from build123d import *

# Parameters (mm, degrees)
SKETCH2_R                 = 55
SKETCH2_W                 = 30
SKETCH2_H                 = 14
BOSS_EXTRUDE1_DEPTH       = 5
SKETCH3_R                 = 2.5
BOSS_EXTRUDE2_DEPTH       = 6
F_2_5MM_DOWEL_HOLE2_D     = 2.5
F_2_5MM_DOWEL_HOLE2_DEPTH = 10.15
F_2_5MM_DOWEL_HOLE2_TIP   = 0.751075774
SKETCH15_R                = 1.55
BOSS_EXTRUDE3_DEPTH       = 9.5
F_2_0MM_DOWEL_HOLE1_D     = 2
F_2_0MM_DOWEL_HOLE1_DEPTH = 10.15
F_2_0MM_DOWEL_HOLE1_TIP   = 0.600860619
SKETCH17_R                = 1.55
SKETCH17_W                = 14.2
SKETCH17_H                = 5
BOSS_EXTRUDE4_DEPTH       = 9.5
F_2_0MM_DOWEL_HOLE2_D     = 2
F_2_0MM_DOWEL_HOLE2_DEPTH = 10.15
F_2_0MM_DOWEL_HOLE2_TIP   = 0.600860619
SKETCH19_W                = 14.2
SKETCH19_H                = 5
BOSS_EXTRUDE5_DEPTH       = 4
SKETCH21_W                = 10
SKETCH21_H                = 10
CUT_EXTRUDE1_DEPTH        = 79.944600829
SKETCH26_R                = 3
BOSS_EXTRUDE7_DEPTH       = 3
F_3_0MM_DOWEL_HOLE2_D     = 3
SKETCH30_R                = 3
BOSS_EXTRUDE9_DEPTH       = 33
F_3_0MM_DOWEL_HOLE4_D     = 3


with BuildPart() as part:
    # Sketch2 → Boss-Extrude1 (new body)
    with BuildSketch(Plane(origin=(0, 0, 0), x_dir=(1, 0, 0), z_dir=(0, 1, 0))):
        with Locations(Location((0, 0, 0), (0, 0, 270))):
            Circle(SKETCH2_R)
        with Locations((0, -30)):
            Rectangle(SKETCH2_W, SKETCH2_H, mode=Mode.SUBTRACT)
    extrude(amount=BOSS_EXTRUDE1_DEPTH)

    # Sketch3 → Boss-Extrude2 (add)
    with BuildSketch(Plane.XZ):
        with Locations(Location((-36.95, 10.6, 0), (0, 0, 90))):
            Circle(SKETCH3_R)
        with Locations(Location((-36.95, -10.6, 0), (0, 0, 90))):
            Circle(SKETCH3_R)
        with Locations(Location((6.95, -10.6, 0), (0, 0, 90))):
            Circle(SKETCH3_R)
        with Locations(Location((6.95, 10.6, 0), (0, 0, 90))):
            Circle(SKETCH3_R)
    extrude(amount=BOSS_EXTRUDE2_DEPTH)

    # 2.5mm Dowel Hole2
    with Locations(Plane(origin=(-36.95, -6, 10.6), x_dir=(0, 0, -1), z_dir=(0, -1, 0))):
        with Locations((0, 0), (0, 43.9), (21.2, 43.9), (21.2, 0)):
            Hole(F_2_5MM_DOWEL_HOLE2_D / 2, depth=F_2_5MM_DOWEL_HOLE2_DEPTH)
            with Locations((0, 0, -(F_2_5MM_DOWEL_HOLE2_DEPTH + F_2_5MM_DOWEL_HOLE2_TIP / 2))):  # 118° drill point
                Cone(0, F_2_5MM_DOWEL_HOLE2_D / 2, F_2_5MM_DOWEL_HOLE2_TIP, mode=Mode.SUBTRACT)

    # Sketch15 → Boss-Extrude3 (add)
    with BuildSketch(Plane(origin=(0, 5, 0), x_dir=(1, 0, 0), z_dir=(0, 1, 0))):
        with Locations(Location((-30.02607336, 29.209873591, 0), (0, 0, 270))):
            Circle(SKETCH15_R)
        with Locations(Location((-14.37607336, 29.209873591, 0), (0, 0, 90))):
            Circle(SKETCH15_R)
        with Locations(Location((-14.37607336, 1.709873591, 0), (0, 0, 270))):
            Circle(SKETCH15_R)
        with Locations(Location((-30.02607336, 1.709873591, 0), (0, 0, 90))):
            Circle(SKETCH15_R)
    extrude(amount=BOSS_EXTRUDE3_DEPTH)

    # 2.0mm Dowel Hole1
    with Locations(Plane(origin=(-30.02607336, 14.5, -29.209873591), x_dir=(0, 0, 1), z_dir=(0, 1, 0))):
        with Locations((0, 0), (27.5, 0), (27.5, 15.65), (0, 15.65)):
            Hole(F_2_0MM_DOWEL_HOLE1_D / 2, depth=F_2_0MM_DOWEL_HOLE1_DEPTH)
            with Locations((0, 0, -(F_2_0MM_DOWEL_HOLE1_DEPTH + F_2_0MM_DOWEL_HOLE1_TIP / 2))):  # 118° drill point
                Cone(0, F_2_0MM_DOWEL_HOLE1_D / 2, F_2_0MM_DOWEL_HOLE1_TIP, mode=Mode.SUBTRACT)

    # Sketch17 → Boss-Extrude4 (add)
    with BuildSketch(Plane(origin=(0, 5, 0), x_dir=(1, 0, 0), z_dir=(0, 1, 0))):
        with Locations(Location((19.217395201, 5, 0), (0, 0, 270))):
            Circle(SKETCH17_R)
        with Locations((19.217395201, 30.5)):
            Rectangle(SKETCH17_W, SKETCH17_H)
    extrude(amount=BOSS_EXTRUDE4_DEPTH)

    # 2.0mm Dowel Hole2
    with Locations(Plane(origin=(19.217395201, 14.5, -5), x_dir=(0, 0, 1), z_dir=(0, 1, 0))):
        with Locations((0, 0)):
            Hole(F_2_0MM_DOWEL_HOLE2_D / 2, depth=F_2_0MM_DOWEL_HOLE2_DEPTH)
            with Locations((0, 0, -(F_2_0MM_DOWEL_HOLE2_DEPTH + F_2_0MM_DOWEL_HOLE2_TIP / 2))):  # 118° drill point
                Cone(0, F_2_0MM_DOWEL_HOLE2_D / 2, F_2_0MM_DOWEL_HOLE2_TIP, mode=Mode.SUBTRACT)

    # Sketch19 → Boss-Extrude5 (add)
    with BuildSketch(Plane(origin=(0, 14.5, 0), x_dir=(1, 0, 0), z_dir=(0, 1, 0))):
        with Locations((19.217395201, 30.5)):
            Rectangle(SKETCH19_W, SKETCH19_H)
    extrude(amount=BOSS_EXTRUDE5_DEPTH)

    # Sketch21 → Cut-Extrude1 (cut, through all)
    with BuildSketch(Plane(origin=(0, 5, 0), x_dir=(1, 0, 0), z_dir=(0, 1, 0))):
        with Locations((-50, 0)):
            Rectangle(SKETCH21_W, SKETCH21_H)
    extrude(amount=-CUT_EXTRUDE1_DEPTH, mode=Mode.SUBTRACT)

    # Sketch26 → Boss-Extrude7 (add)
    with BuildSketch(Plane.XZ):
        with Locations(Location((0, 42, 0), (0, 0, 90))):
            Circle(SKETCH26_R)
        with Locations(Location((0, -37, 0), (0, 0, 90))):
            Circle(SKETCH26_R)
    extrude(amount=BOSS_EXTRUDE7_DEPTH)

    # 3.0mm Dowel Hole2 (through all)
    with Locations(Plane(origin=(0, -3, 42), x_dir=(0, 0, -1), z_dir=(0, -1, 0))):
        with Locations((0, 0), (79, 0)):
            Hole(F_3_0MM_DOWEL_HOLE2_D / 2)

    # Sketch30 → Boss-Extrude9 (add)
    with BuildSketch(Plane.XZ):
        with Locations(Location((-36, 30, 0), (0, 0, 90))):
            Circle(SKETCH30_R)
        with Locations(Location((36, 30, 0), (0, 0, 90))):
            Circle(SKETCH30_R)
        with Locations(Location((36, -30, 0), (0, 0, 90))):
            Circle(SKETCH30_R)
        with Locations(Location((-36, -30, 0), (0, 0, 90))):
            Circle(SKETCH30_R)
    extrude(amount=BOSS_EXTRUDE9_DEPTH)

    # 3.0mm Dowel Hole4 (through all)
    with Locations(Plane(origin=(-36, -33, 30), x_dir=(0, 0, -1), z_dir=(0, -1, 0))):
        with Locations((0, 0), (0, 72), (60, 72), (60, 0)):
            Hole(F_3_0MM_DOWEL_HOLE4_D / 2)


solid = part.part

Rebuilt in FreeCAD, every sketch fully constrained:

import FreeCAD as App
import Part
import Sketcher

V = App.Vector


def add_polygon(sketch, points):
    """Adds a closed chain of lines whose ends are joined by coincident constraints."""
    first, n = sketch.GeometryCount, len(points)
    for a, b in zip(points, points[1:] + points[:1]):
        sketch.addGeometry(Part.LineSegment(App.Vector(*a, 0), App.Vector(*b, 0)), False)
    for i in range(n):
        sketch.addConstraint(Sketcher.Constraint("Coincident", first + i, 2, first + (i + 1) % n, 1))

doc = App.newDocument("Part")
body = doc.addObject("PartDesign::Body", "Body")

# Sketch on XZ plane
sketch1 = doc.addObject("Sketcher::SketchObject", "Sketch")
body.addObject(sketch1)
sketch1.AttachmentSupport = (doc.XZ_Plane, [""])
sketch1.MapMode = "FlatFace"
sketch1.addGeometry(Part.Circle(V(0, 0, 0), V(0, 0, 1), 55), False)  # 0
add_polygon(sketch1, [(15, 37), (-15, 37), (-15, 23), (15, 23)])  # lines 1-4
sketch1.addConstraint([
    Sketcher.Constraint("Horizontal", 1),
    Sketcher.Constraint("Vertical", 2),
    Sketcher.Constraint("Horizontal", 3),
    Sketcher.Constraint("Vertical", 4),
    Sketcher.Constraint("Coincident", 0, 3, -1, 1),
    Sketcher.Constraint("Diameter", 0, 110.0),
    Sketcher.Constraint("DistanceX", 1, 2, 1, 1, 30.0),
    Sketcher.Constraint("DistanceY", 2, 2, 2, 1, 14.0),
    Sketcher.Constraint("DistanceX", 1, 2, -1, 1, 15.0),
    Sketcher.Constraint("DistanceY", -1, 1, 1, 2, 37.0),
])
pad1 = doc.addObject("PartDesign::Pad", "Pad")
body.addObject(pad1)
pad1.Profile = sketch1
pad1.Length = 5
pad1.Reversed = True

# Sketch on XZ plane
sketch2 = doc.addObject("Sketcher::SketchObject", "Sketch001")
body.addObject(sketch2)
sketch2.AttachmentSupport = (doc.XZ_Plane, [""])
sketch2.MapMode = "FlatFace"
sketch2.addGeometry([
    Part.Circle(V(-36.95, 10.6, 0), V(0, 0, 1), 2.5),
    Part.Circle(V(-36.95, -10.6, 0), V(0, 0, 1), 2.5),
    Part.Circle(V(6.95, -10.6, 0), V(0, 0, 1), 2.5),
    Part.Circle(V(6.95, 10.6, 0), V(0, 0, 1), 2.5),
], False)
sketch2.addConstraint([
    Sketcher.Constraint("Equal", 0, 1),
    Sketcher.Constraint("Equal", 1, 2),
    Sketcher.Constraint("Equal", 2, 3),
    Sketcher.Constraint("Symmetric", 0, 3, 1, 3, -1),
    Sketcher.Constraint("Symmetric", 2, 3, 3, 3, -1),
    Sketcher.Constraint("Horizontal", 1, 3, 2, 3),
    Sketcher.Constraint("Diameter", 0, 5.0),
    Sketcher.Constraint("DistanceY", -1, 1, 0, 3, 10.6),
    Sketcher.Constraint("DistanceX", 1, 3, 2, 3, 43.9),
    Sketcher.Constraint("DistanceX", 0, 3, -1, 1, 36.95),
])
pad2 = doc.addObject("PartDesign::Pad", "Pad001")
body.addObject(pad2)
pad2.Profile = sketch2
pad2.Length = 6

# Sketch on XZ plane
sketch3 = doc.addObject("Sketcher::SketchObject", "Sketch002")
body.addObject(sketch3)
sketch3.AttachmentSupport = (doc.XZ_Plane, [""])
sketch3.MapMode = "FlatFace"
sketch3.AttachmentOffset = App.Placement(V(0, 0, 6), App.Rotation())
sketch3.addGeometry([
    Part.Circle(V(-36.95, 10.6, 0), V(0, 0, 1), 1.25),
    Part.Circle(V(6.95, 10.6, 0), V(0, 0, 1), 1.25),
    Part.Circle(V(6.95, -10.6, 0), V(0, 0, 1), 1.25),
    Part.Circle(V(-36.95, -10.6, 0), V(0, 0, 1), 1.25),
], False)
sketch3.addConstraint([
    Sketcher.Constraint("Equal", 0, 1),
    Sketcher.Constraint("Equal", 1, 2),
    Sketcher.Constraint("Equal", 2, 3),
    Sketcher.Constraint("Symmetric", 1, 3, 2, 3, -1),
    Sketcher.Constraint("Symmetric", 0, 3, 3, 3, -1),
    Sketcher.Constraint("Horizontal", 0, 3, 1, 3),
    Sketcher.Constraint("Diameter", 0, 2.5),
    Sketcher.Constraint("DistanceY", -1, 1, 0, 3, 10.6),
    Sketcher.Constraint("DistanceX", 0, 3, 1, 3, 43.9),
    Sketcher.Constraint("DistanceX", 0, 3, -1, 1, 36.95),
])
doc.recompute()
hole = doc.addObject("PartDesign::Hole", "Hole")
body.addObject(hole)
hole.Profile = sketch3
hole.ThreadType = "None"
hole.Diameter = 2.5
hole.DepthType = "Dimension"
hole.Depth = 10.15
hole.DrillPoint = "Angled"
hole.DrillPointAngle = 118

# Sketch on XZ plane
sketch4 = doc.addObject("Sketcher::SketchObject", "Sketch003")
body.addObject(sketch4)
sketch4.AttachmentSupport = (doc.XZ_Plane, [""])
sketch4.MapMode = "FlatFace"
sketch4.AttachmentOffset = App.Placement(V(0, 0, -5), App.Rotation())
sketch4.addGeometry([
    Part.Circle(V(-30.026073, -29.209874, 0), V(0, 0, 1), 1.55),
    Part.Circle(V(-14.376073, -29.209874, 0), V(0, 0, 1), 1.55),
    Part.Circle(V(-14.376073, -1.709874, 0), V(0, 0, 1), 1.55),
    Part.Circle(V(-30.026073, -1.709874, 0), V(0, 0, 1), 1.55),
], False)
sketch4.addConstraint([
    Sketcher.Constraint("Equal", 0, 1),
    Sketcher.Constraint("Equal", 1, 2),
    Sketcher.Constraint("Equal", 2, 3),
    Sketcher.Constraint("Horizontal", 0, 3, 1, 3),
    Sketcher.Constraint("Horizontal", 2, 3, 3, 3),
    Sketcher.Constraint("Vertical", 1, 3, 2, 3),
    Sketcher.Constraint("Vertical", 0, 3, 3, 3),
    Sketcher.Constraint("Diameter", 0, 3.1),
    Sketcher.Constraint("DistanceY", 1, 3, 2, 3, 27.5),
    Sketcher.Constraint("DistanceX", 0, 3, 1, 3, 15.65),
    Sketcher.Constraint("DistanceX", 0, 3, -1, 1, 30.026073),
    Sketcher.Constraint("DistanceY", 0, 3, -1, 1, 29.209874),
])
pad3 = doc.addObject("PartDesign::Pad", "Pad002")
body.addObject(pad3)
pad3.Profile = sketch4
pad3.Length = 9.5
pad3.Reversed = True

# Sketch on XZ plane
sketch5 = doc.addObject("Sketcher::SketchObject", "Sketch004")
body.addObject(sketch5)
sketch5.AttachmentSupport = (doc.XZ_Plane, [""])
sketch5.MapMode = "FlatFace"
sketch5.AttachmentOffset = App.Placement(V(0, 0, -14.5), App.Rotation())
sketch5.addGeometry([
    Part.Circle(V(-30.026073, -29.209874, 0), V(0, 0, 1), 1),
    Part.Circle(V(-30.026073, -1.709874, 0), V(0, 0, 1), 1),
    Part.Circle(V(-14.376073, -1.709874, 0), V(0, 0, 1), 1),
    Part.Circle(V(-14.376073, -29.209874, 0), V(0, 0, 1), 1),
], False)
sketch5.addConstraint([
    Sketcher.Constraint("Equal", 0, 1),
    Sketcher.Constraint("Equal", 1, 2),
    Sketcher.Constraint("Equal", 2, 3),
    Sketcher.Constraint("Horizontal", 1, 3, 2, 3),
    Sketcher.Constraint("Horizontal", 0, 3, 3, 3),
    Sketcher.Constraint("Vertical", 0, 3, 1, 3),
    Sketcher.Constraint("Vertical", 2, 3, 3, 3),
    Sketcher.Constraint("Diameter", 0, 2.0),
    Sketcher.Constraint("DistanceY", 0, 3, 1, 3, 27.5),
    Sketcher.Constraint("DistanceX", 1, 3, 2, 3, 15.65),
    Sketcher.Constraint("DistanceX", 0, 3, -1, 1, 30.026073),
    Sketcher.Constraint("DistanceY", 0, 3, -1, 1, 29.209874),
])
doc.recompute()
hole2 = doc.addObject("PartDesign::Hole", "Hole001")
body.addObject(hole2)
hole2.Profile = sketch5
hole2.ThreadType = "None"
hole2.Diameter = 2
hole2.DepthType = "Dimension"
hole2.Depth = 10.15
hole2.DrillPoint = "Angled"
hole2.DrillPointAngle = 118
hole2.Reversed = True

# Sketch on XZ plane
sketch6 = doc.addObject("Sketcher::SketchObject", "Sketch005")
body.addObject(sketch6)
sketch6.AttachmentSupport = (doc.XZ_Plane, [""])
sketch6.MapMode = "FlatFace"
sketch6.AttachmentOffset = App.Placement(V(0, 0, -5), App.Rotation())
sketch6.addGeometry(Part.Circle(V(19.217395, -5, 0), V(0, 0, 1), 1.55), False)  # 0
add_polygon(sketch6, [(12.117395, -33), (12.117395, -28), (26.317395, -28), (26.317395, -33)])  # lines 1-4
sketch6.addConstraint([
    Sketcher.Constraint("Vertical", 1),
    Sketcher.Constraint("Horizontal", 2),
    Sketcher.Constraint("Vertical", 3),
    Sketcher.Constraint("Horizontal", 4),
    Sketcher.Constraint("Diameter", 0, 3.1),
    Sketcher.Constraint("DistanceY", 1, 1, 1, 2, 5.0),
    Sketcher.Constraint("DistanceX", 2, 1, 2, 2, 14.2),
    Sketcher.Constraint("DistanceY", 0, 3, -1, 1, 5.0),
    Sketcher.Constraint("DistanceY", 1, 2, -1, 1, 28.0),
    Sketcher.Constraint("DistanceX", 1, 2, 0, 3, 7.1),
    Sketcher.Constraint("DistanceX", -1, 1, 0, 3, 19.217395),
])
pad4 = doc.addObject("PartDesign::Pad", "Pad003")
body.addObject(pad4)
pad4.Profile = sketch6
pad4.Length = 9.5
pad4.Reversed = True

# Sketch on XZ plane
sketch7 = doc.addObject("Sketcher::SketchObject", "Sketch006")
body.addObject(sketch7)
sketch7.AttachmentSupport = (doc.XZ_Plane, [""])
sketch7.MapMode = "FlatFace"
sketch7.AttachmentOffset = App.Placement(V(0, 0, -14.5), App.Rotation())
sketch7.addGeometry(Part.Circle(V(19.217395, -5, 0), V(0, 0, 1), 1), False)
sketch7.addConstraint([
    Sketcher.Constraint("Diameter", 0, 2.0),
    Sketcher.Constraint("DistanceY", 0, 3, -1, 1, 5.0),
    Sketcher.Constraint("DistanceX", -1, 1, 0, 3, 19.217395),
])
doc.recompute()
hole3 = doc.addObject("PartDesign::Hole", "Hole002")
body.addObject(hole3)
hole3.Profile = sketch7
hole3.ThreadType = "None"
hole3.Diameter = 2
hole3.DepthType = "Dimension"
hole3.Depth = 10.15
hole3.DrillPoint = "Angled"
hole3.DrillPointAngle = 118
hole3.Reversed = True

# Sketch on XZ plane
sketch8 = doc.addObject("Sketcher::SketchObject", "Sketch007")
body.addObject(sketch8)
sketch8.AttachmentSupport = (doc.XZ_Plane, [""])
sketch8.MapMode = "FlatFace"
sketch8.AttachmentOffset = App.Placement(V(0, 0, -14.5), App.Rotation())
add_polygon(sketch8, [(12.117395, -33), (12.117395, -28), (26.317395, -28), (26.317395, -33)])  # lines 0-3
sketch8.addConstraint([
    Sketcher.Constraint("Vertical", 0),
    Sketcher.Constraint("Horizontal", 1),
    Sketcher.Constraint("Vertical", 2),
    Sketcher.Constraint("Horizontal", 3),
    Sketcher.Constraint("DistanceY", 0, 1, 0, 2, 5.0),
    Sketcher.Constraint("DistanceX", 1, 1, 1, 2, 14.2),
    Sketcher.Constraint("DistanceY", 0, 2, -1, 1, 28.0),
    Sketcher.Constraint("DistanceX", -1, 1, 0, 2, 12.117395),
])
pad5 = doc.addObject("PartDesign::Pad", "Pad004")
body.addObject(pad5)
pad5.Profile = sketch8
pad5.Length = 4
pad5.Reversed = True

# Sketch on XZ plane
sketch9 = doc.addObject("Sketcher::SketchObject", "Sketch008")
body.addObject(sketch9)
sketch9.AttachmentSupport = (doc.XZ_Plane, [""])
sketch9.MapMode = "FlatFace"
sketch9.AttachmentOffset = App.Placement(V(0, 0, -5), App.Rotation())
add_polygon(sketch9, [(-55, -5), (-55, 5), (-45, 5), (-45, -5)])  # lines 0-3
sketch9.addConstraint([
    Sketcher.Constraint("Vertical", 0),
    Sketcher.Constraint("Horizontal", 1),
    Sketcher.Constraint("Vertical", 2),
    Sketcher.Constraint("Horizontal", 3),
    Sketcher.Constraint("Equal", 3, 0),
    Sketcher.Constraint("DistanceX", 1, 1, 1, 2, 10.0),
    Sketcher.Constraint("DistanceX", 0, 2, -1, 1, 55.0),
    Sketcher.Constraint("DistanceY", -1, 1, 0, 2, 5.0),
])
pocket1 = doc.addObject("PartDesign::Pocket", "Pocket")
body.addObject(pocket1)
pocket1.Profile = sketch9
pocket1.Type = "ThroughAll"
pocket1.Reversed = True

# Sketch on XZ plane
sketch10 = doc.addObject("Sketcher::SketchObject", "Sketch009")
body.addObject(sketch10)
sketch10.AttachmentSupport = (doc.XZ_Plane, [""])
sketch10.MapMode = "FlatFace"
sketch10.addGeometry([
    Part.Circle(V(0, 42, 0), V(0, 0, 1), 3),
    Part.Circle(V(0, -37, 0), V(0, 0, 1), 3),
], False)
sketch10.addConstraint([
    Sketcher.Constraint("Equal", 0, 1),
    Sketcher.Constraint("PointOnObject", 0, 3, -2),
    Sketcher.Constraint("PointOnObject", 1, 3, -2),
    Sketcher.Constraint("Diameter", 0, 6.0),
    Sketcher.Constraint("DistanceY", -1, 1, 0, 3, 42.0),
    Sketcher.Constraint("DistanceY", 1, 3, -1, 1, 37.0),
])
pad6 = doc.addObject("PartDesign::Pad", "Pad005")
body.addObject(pad6)
pad6.Profile = sketch10
pad6.Length = 3

# Sketch on XZ plane
sketch11 = doc.addObject("Sketcher::SketchObject", "Sketch010")
body.addObject(sketch11)
sketch11.AttachmentSupport = (doc.XZ_Plane, [""])
sketch11.MapMode = "FlatFace"
sketch11.AttachmentOffset = App.Placement(V(0, 0, 3), App.Rotation())
sketch11.addGeometry([
    Part.Circle(V(0, 42, 0), V(0, 0, 1), 1.5),
    Part.Circle(V(0, -37, 0), V(0, 0, 1), 1.5),
], False)
sketch11.addConstraint([
    Sketcher.Constraint("Equal", 0, 1),
    Sketcher.Constraint("PointOnObject", 0, 3, -2),
    Sketcher.Constraint("PointOnObject", 1, 3, -2),
    Sketcher.Constraint("Diameter", 0, 3.0),
    Sketcher.Constraint("DistanceY", -1, 1, 0, 3, 42.0),
    Sketcher.Constraint("DistanceY", 1, 3, -1, 1, 37.0),
])
doc.recompute()
hole4 = doc.addObject("PartDesign::Hole", "Hole003")
body.addObject(hole4)
hole4.Profile = sketch11
hole4.ThreadType = "None"
hole4.Diameter = 3
hole4.DepthType = "ThroughAll"

# Sketch on XZ plane
sketch12 = doc.addObject("Sketcher::SketchObject", "Sketch011")
body.addObject(sketch12)
sketch12.AttachmentSupport = (doc.XZ_Plane, [""])
sketch12.MapMode = "FlatFace"
sketch12.addGeometry([
    Part.Circle(V(-36, 30, 0), V(0, 0, 1), 3),
    Part.Circle(V(36, 30, 0), V(0, 0, 1), 3),
    Part.Circle(V(36, -30, 0), V(0, 0, 1), 3),
    Part.Circle(V(-36, -30, 0), V(0, 0, 1), 3),
], False)
sketch12.addConstraint([
    Sketcher.Constraint("Equal", 0, 1),
    Sketcher.Constraint("Equal", 1, 2),
    Sketcher.Constraint("Equal", 2, 3),
    Sketcher.Constraint("Symmetric", 0, 3, 2, 3, -1, 1),
    Sketcher.Constraint("Symmetric", 1, 3, 3, 3, -1, 1),
    Sketcher.Constraint("Symmetric", 0, 3, 1, 3, -2),
    Sketcher.Constraint("Diameter", 0, 6.0),
    Sketcher.Constraint("DistanceX", 0, 3, -1, 1, 36.0),
    Sketcher.Constraint("DistanceY", -1, 1, 0, 3, 30.0),
])
pad7 = doc.addObject("PartDesign::Pad", "Pad006")
body.addObject(pad7)
pad7.Profile = sketch12
pad7.Length = 33

# Sketch on XZ plane
sketch13 = doc.addObject("Sketcher::SketchObject", "Sketch012")
body.addObject(sketch13)
sketch13.AttachmentSupport = (doc.XZ_Plane, [""])
sketch13.MapMode = "FlatFace"
sketch13.AttachmentOffset = App.Placement(V(0, 0, 33), App.Rotation())
sketch13.addGeometry([
    Part.Circle(V(-36, 30, 0), V(0, 0, 1), 1.5),
    Part.Circle(V(36, 30, 0), V(0, 0, 1), 1.5),
    Part.Circle(V(36, -30, 0), V(0, 0, 1), 1.5),
    Part.Circle(V(-36, -30, 0), V(0, 0, 1), 1.5),
], False)
sketch13.addConstraint([
    Sketcher.Constraint("Equal", 0, 1),
    Sketcher.Constraint("Equal", 1, 2),
    Sketcher.Constraint("Equal", 2, 3),
    Sketcher.Constraint("Symmetric", 0, 3, 2, 3, -1, 1),
    Sketcher.Constraint("Symmetric", 1, 3, 3, 3, -1, 1),
    Sketcher.Constraint("Symmetric", 0, 3, 1, 3, -2),
    Sketcher.Constraint("Diameter", 0, 3.0),
    Sketcher.Constraint("DistanceX", 0, 3, -1, 1, 36.0),
    Sketcher.Constraint("DistanceY", -1, 1, 0, 3, 30.0),
])
doc.recompute()
hole5 = doc.addObject("PartDesign::Hole", "Hole004")
body.addObject(hole5)
hole5.Profile = sketch13
hole5.ThreadType = "None"
hole5.Diameter = 3
hole5.DepthType = "ThroughAll"

doc.recompute()
